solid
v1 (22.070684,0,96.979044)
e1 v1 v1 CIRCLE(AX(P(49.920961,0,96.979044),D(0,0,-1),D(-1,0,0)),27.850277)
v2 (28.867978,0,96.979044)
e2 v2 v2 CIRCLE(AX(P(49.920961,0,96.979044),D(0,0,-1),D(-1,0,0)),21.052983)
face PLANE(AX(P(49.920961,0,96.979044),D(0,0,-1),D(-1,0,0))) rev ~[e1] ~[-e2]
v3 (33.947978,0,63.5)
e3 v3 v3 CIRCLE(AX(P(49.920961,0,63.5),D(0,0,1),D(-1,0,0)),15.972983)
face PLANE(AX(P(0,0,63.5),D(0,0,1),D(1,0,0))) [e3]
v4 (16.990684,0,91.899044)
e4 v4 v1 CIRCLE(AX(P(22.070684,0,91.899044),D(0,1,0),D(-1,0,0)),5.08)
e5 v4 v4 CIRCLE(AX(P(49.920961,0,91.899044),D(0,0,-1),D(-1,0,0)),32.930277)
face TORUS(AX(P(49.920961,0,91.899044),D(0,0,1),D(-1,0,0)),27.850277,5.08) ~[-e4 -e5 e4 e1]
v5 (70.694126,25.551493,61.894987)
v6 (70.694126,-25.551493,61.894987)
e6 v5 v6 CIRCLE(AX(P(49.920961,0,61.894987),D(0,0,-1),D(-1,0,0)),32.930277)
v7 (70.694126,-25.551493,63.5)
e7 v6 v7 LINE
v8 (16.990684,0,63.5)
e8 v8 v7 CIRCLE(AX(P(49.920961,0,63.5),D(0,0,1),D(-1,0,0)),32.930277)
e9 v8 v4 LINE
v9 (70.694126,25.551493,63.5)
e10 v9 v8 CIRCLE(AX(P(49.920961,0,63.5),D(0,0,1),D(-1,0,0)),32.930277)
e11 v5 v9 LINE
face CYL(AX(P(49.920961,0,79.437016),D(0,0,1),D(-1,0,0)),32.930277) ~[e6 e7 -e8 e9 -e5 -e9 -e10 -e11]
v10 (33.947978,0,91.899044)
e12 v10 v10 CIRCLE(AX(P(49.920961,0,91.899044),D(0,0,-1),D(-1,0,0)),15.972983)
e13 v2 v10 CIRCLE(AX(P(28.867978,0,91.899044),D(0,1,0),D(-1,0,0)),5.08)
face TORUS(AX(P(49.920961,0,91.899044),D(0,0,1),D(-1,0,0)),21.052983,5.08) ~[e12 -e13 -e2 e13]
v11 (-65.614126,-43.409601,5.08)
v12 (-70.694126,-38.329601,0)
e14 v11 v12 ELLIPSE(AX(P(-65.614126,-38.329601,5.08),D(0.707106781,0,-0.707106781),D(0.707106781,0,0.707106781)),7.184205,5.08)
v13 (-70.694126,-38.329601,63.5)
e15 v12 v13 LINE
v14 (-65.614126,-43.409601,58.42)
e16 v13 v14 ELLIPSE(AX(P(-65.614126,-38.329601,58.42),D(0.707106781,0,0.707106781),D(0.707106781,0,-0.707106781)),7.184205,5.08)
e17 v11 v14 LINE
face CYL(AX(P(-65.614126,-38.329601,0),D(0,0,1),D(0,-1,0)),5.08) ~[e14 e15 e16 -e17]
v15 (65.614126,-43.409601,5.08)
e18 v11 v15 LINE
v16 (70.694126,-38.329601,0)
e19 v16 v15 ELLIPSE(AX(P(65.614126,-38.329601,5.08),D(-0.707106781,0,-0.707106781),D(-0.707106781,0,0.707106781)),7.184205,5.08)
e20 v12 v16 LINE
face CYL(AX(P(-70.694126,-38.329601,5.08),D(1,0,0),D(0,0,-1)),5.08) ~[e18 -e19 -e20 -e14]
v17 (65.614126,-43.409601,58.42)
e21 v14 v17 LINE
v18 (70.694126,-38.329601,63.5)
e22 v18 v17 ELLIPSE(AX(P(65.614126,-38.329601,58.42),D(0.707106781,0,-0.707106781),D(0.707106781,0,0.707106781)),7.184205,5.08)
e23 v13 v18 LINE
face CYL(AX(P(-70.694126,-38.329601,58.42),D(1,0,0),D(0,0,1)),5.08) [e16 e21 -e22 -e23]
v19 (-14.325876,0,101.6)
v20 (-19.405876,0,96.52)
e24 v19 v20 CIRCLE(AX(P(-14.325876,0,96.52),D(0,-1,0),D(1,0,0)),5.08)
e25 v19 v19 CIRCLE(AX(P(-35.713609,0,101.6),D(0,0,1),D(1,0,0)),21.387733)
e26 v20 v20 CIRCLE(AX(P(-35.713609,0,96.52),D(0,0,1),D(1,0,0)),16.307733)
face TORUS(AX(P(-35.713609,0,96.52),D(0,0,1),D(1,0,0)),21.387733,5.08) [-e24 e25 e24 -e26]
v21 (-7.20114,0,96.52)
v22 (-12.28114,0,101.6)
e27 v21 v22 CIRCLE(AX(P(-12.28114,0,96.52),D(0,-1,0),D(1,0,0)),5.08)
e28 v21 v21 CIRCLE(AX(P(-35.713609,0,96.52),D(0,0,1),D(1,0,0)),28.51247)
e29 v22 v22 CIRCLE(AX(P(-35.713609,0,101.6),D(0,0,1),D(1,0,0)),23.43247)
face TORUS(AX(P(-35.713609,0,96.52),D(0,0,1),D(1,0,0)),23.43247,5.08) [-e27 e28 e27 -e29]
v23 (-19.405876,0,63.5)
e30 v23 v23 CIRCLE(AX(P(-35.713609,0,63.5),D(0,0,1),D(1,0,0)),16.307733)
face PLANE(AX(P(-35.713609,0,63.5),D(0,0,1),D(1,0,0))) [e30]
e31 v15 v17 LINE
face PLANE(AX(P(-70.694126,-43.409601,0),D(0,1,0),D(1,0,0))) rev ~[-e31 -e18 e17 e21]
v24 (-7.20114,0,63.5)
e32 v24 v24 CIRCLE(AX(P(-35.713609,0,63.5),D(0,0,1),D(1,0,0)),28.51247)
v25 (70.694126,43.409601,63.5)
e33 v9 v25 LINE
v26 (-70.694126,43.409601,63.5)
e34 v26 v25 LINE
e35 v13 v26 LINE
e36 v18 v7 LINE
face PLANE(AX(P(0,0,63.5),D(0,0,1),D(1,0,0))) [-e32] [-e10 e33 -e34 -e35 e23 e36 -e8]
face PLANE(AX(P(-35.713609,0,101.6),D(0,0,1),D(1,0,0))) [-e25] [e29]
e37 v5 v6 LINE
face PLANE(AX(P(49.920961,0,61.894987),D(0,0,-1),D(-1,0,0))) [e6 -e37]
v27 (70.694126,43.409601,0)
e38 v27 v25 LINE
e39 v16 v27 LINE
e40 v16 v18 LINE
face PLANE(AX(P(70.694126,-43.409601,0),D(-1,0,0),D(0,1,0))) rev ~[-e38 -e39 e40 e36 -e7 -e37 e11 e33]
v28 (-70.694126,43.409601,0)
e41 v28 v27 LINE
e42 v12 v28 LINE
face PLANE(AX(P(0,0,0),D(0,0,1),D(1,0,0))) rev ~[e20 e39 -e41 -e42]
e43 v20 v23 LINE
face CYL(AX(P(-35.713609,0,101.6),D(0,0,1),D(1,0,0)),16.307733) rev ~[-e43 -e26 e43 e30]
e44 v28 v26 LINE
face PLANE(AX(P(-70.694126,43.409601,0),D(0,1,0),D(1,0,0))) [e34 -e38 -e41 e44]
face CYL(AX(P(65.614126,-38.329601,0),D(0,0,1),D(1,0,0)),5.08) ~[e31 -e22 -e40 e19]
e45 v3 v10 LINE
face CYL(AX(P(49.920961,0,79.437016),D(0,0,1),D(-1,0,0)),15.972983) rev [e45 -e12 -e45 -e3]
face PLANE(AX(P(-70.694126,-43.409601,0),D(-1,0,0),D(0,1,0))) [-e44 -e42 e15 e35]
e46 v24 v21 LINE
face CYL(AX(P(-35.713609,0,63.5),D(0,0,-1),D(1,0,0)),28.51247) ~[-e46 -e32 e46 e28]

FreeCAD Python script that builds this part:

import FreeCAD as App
import Part
import Sketcher
Q = App.Units.Quantity


def edges_at(feature, points):
    """Names of the edges that pass closest to the given points."""
    edges = feature.Shape.Edges
    near = lambda p: min(range(len(edges)), key=lambda i: edges[i].distToShape(Part.Vertex(*p))[0])
    return sorted({f"Edge{near(p) + 1}" for p in points})


def add_polygon(sketch, points):
    """Adds a closed chain of lines whose ends are joined by coincident constraints."""
    first, n = sketch.GeometryCount, len(points)
    for a, b in zip(points, points[1:] + points[:1]):
        sketch.addGeometry(Part.LineSegment(App.Vector(*a, 0), App.Vector(*b, 0)), False)
    for i in range(n):
        sketch.addConstraint(Sketcher.Constraint("Coincident", first + i, 2, first + (i + 1) % n, 1))

doc = App.newDocument("Part")
body = doc.addObject("PartDesign::Body", "Body")

sketch1 = body.newObject("Sketcher::SketchObject", "Sketch")
sketch1.AttachmentSupport = (doc.getObject("XY_Plane"), [""])
sketch1.MapMode = "FlatFace"
add_polygon(sketch1, [(-70.694126, 43.409601), (-70.694126, -43.409601), (70.694126, -43.409601), (70.694126, 43.409601)])
sketch1.addConstraint([
    Sketcher.Constraint("Vertical", 0),
    Sketcher.Constraint("Horizontal", 1),
    Sketcher.Constraint("Vertical", 2),
    Sketcher.Constraint("Horizontal", 3),
    Sketcher.Constraint("Symmetric", 0, 2, 2, 2, -1, 1),
    Sketcher.Constraint("DistanceY", 0, 2, 0, 1, Q("86.819202 mm")),
    Sketcher.Constraint("DistanceX", 1, 1, 1, 2, Q("141.388252 mm")),
])
pad1 = body.newObject("PartDesign::Pad", "Pad")
pad1.Profile = sketch1
pad1.Length = Q("2.5 in")

sketch2 = body.newObject("Sketcher::SketchObject", "Sketch001")
sketch2.AttachmentSupport = (doc.getObject("XY_Plane"), [""])
sketch2.MapMode = "FlatFace"
sketch2.AttachmentOffset = App.Placement(App.Vector(0, 0, 2.5 * 25.4), App.Rotation())
sketch2.addGeometry(Part.Circle(App.Vector(-35.713609, 0, 0), App.Vector(0, 0, 1), 28.51247), False)
sketch2.addConstraint([
    Sketcher.Constraint("PointOnObject", 0, 3, -1),
    Sketcher.Constraint("Diameter", 0, Q("57.024939 mm")),
    Sketcher.Constraint("DistanceX", 0, 3, -1, 1, Q("35.713609 mm")),
])
pad2 = body.newObject("PartDesign::Pad", "Pad001")
pad2.Profile = sketch2
pad2.Length = Q("1.5 in")

sketch3 = body.newObject("Sketcher::SketchObject", "Sketch002")
sketch3.AttachmentSupport = (doc.getObject("XY_Plane"), [""])
sketch3.MapMode = "FlatFace"
sketch3.AttachmentOffset = App.Placement(App.Vector(0, 0, 4 * 25.4), App.Rotation())
sketch3.addGeometry(Part.Circle(App.Vector(-35.713609, 0, 0), App.Vector(0, 0, 1), 16.307733), False)
sketch3.addConstraint([
    Sketcher.Constraint("PointOnObject", 0, 3, -1),
    Sketcher.Constraint("Diameter", 0, Q("32.615466 mm")),
    Sketcher.Constraint("DistanceX", 0, 3, -1, 1, Q("35.713609 mm")),
])
pocket1 = body.newObject("PartDesign::Pocket", "Pocket")
pocket1.Profile = sketch3
pocket1.Length = Q("1.5 in")

sketch4 = body.newObject("Sketcher::SketchObject", "Sketch003")
sketch4.AttachmentSupport = (doc.getObject("XZ_Plane"), [""])
sketch4.MapMode = "FlatFace"
add_polygon(sketch4, [(16.990684, 96.979044), (16.990684, 61.894987), (33.947978, 61.894987), (33.947978, 96.979044)])
sketch4.addGeometry(Part.LineSegment(App.Vector(49.920961, 96.979044, 0), App.Vector(49.920961, 61.894987, 0)), True)
sketch4.addConstraint([
    Sketcher.Constraint("Vertical", 0),
    Sketcher.Constraint("Horizontal", 1),
    Sketcher.Constraint("Vertical", 2),
    Sketcher.Constraint("Horizontal", 3),
    Sketcher.Constraint("Vertical", 4),
    Sketcher.Constraint("Horizontal", 3, 2, 4, 1),
    Sketcher.Constraint("Horizontal", 1, 2, 4, 2),
    Sketcher.Constraint("DistanceX", 1, 1, 1, 2, Q("16.957294 mm")),
    Sketcher.Constraint("DistanceY", 0, 2, 0, 1, Q("35.084058 mm")),
    Sketcher.Constraint("DistanceX", -1, 1, 1, 2, Q("33.947978 mm")),
    Sketcher.Constraint("DistanceX", -1, 1, 4, 1, Q("49.920961 mm")),
    Sketcher.Constraint("DistanceY", -1, 1, 0, 2, Q("61.894987 mm")),
])
revolution = body.newObject("PartDesign::Revolution", "Revolution")
revolution.Profile = sketch4
revolution.ReferenceAxis = (sketch4, ["Axis0"])
revolution.Angle = 360
doc.recompute()

fillet = body.newObject("PartDesign::Fillet", "Fillet")
fillet.Base = (revolution, edges_at(revolution, [
    (82.851, 0, 96.979),
    (-64.226, 0, 101.6),
    (65.894, 0, 96.979),
    (0, -43.41, 63.5),
    (70.694, -43.41, 31.75),
    (-70.694, -43.41, 31.75),
    (0, -43.41, 0),
    (-52.021, 0, 101.6),
]))
fillet.Radius = Q("0.2 in")

doc.recompute()
